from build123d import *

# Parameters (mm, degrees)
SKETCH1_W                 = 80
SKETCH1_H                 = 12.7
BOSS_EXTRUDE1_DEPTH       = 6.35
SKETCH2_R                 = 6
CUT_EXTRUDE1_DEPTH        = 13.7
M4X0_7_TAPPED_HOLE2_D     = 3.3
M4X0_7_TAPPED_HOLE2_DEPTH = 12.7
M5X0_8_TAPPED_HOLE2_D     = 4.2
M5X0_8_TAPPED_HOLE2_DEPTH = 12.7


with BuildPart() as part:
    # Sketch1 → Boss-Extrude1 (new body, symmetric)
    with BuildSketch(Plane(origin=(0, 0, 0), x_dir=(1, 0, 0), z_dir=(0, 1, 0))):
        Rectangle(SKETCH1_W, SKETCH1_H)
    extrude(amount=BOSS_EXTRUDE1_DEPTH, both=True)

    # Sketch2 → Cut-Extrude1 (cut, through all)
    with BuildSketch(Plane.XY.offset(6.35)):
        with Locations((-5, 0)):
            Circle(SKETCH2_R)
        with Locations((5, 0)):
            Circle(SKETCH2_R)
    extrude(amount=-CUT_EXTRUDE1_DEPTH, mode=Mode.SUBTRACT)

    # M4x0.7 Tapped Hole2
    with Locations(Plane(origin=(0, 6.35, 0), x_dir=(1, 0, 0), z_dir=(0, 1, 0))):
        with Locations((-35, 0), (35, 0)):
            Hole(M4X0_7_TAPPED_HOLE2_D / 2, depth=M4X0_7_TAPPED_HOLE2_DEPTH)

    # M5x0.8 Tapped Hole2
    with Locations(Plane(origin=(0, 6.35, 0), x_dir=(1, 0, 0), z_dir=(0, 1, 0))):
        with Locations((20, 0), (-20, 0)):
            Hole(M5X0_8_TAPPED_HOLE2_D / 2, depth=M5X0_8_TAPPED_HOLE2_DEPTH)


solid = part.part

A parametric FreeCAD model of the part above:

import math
import FreeCAD as App
import Part
import Sketcher
from FreeCAD import Vector
Q = App.Units.Quantity


def add_polygon(sketch, points):
    """Adds a closed chain of lines whose ends are joined by coincident constraints."""
    first, n = sketch.GeometryCount, len(points)
    for a, b in zip(points, points[1:] + points[:1]):
        sketch.addGeometry(Part.LineSegment(App.Vector(*a, 0), App.Vector(*b, 0)), False)
    for i in range(n):
        sketch.addConstraint(Sketcher.Constraint("Coincident", first + i, 2, first + (i + 1) % n, 1))

doc = App.newDocument("Part")
params = doc.addObject("Spreadsheet::Sheet", "Params")
for row, (alias, value) in enumerate([
    ("sketch1_width", "80 mm"),
    ("sketch1_height", "12.7 mm"),
    ("pad1_length", "12.7 mm"),
    ("sketch2_radius", "6 mm"),
    ("sketch3_diameter", "3.3 mm"),
    ("hole_diameter", "3.3 mm"),
    ("hole_depth", "12.7 mm"),
    ("sketch4_diameter", "4.2 mm"),
    ("hole2_diameter", "4.2 mm"),
    ("hole2_depth", "12.7 mm"),
], start=1):
    params.set(f"A{row}", alias)
    params.set(f"B{row}", "=" + value)
    params.setAlias(f"B{row}", alias)

body = doc.addObject("PartDesign::Body", "Body")

# Sketch on XZ plane
sketch1 = body.newObject("Sketcher::SketchObject", "Sketch")
sketch1.AttachmentSupport = (doc.getObject("XZ_Plane"), [""])
sketch1.MapMode = "FlatFace"
add_polygon(sketch1, [(-40, -6.35), (-40, 6.35), (40, 6.35), (40, -6.35)])  # lines 0-3
sketch1.addConstraint([
    Sketcher.Constraint("Vertical", 0),
    Sketcher.Constraint("Horizontal", 1),
    Sketcher.Constraint("Vertical", 2),
    Sketcher.Constraint("Horizontal", 3),
    Sketcher.Constraint("Symmetric", 0, 2, 2, 2, -1, 1),
    Sketcher.Constraint("DistanceX", 1, 1, 1, 2, Q("80 mm")),
    Sketcher.Constraint("DistanceY", 0, 1, 0, 2, Q("12.7 mm")),
])
sketch1.setExpression("Constraints[9]", "Params.sketch1_width")
sketch1.setExpression("Constraints[10]", "Params.sketch1_height")
pad1 = body.newObject("PartDesign::Pad", "Pad")
pad1.Profile = sketch1
pad1.setExpression("Length", "Params.pad1_length")
pad1.Midplane = True

# Sketch on XY plane
sketch2 = body.newObject("Sketcher::SketchObject", "Sketch001")
sketch2.AttachmentSupport = (doc.getObject("XY_Plane"), [""])
sketch2.MapMode = "FlatFace"
sketch2.AttachmentOffset = App.Placement(Vector(0, 0, 6.35), App.Rotation())
sketch2.addGeometry([
    Part.ArcOfCircle(Part.Circle(Vector(5, 0, 0), Vector(0, 0, 1), 6), math.radians(-146.44269), math.radians(146.44269)),
    Part.ArcOfCircle(Part.Circle(Vector(-5, 0, 0), Vector(0, 0, 1), 6), math.radians(33.55731), math.radians(326.44269)),
], False)
sketch2.addConstraint([
    Sketcher.Constraint("Coincident", 0, 1, 1, 2),
    Sketcher.Constraint("Coincident", 1, 1, 0, 2),
    Sketcher.Constraint("Equal", 0, 1),
    Sketcher.Constraint("Symmetric", 0, 3, 1, 3, -1, 1),
    Sketcher.Constraint("PointOnObject", 0, 3, -1),
    Sketcher.Constraint("Radius", 0, Q("6 mm")),
    Sketcher.Constraint("DistanceX", -1, 1, 0, 3, Q("5 mm")),
])
sketch2.setExpression("Constraints[5]", "Params.sketch2_radius")
pocket1 = body.newObject("PartDesign::Pocket", "Pocket")
pocket1.Profile = sketch2
pocket1.Type = "ThroughAll"

# Sketch on XZ plane
sketch3 = body.newObject("Sketcher::SketchObject", "Sketch002")
sketch3.AttachmentSupport = (doc.getObject("XZ_Plane"), [""])
sketch3.MapMode = "FlatFace"
sketch3.AttachmentOffset = App.Placement(Vector(0, 0, -6.35), App.Rotation())
sketch3.addGeometry([
    Part.Circle(Vector(-35, 0, 0), Vector(0, 0, 1), 1.65),
    Part.Circle(Vector(35, 0, 0), Vector(0, 0, 1), 1.65),
], False)
sketch3.addConstraint([
    Sketcher.Constraint("Equal", 0, 1),
    Sketcher.Constraint("Symmetric", 0, 3, 1, 3, -1, 1),
    Sketcher.Constraint("PointOnObject", 0, 3, -1),
    Sketcher.Constraint("Diameter", 0, Q("3.3 mm")),
    Sketcher.Constraint("DistanceX", 0, 3, -1, 1, Q("35 mm")),
])
sketch3.setExpression("Constraints[3]", "Params.sketch3_diameter")
doc.recompute()
hole = body.newObject("PartDesign::Hole", "Hole")
hole.Profile = sketch3
hole.ThreadType = "None"
hole.setExpression("Diameter", "Params.hole_diameter")
hole.DepthType = "Dimension"
hole.setExpression("Depth", "Params.hole_depth")
hole.DrillPoint = "Flat"
hole.Reversed = True

# Sketch on XZ plane
sketch4 = body.newObject("Sketcher::SketchObject", "Sketch003")
sketch4.AttachmentSupport = (doc.getObject("XZ_Plane"), [""])
sketch4.MapMode = "FlatFace"
sketch4.AttachmentOffset = App.Placement(Vector(0, 0, -6.35), App.Rotation())
sketch4.addGeometry([
    Part.Circle(Vector(20, 0, 0), Vector(0, 0, 1), 2.1),
    Part.Circle(Vector(-20, 0, 0), Vector(0, 0, 1), 2.1),
], False)
sketch4.addConstraint([
    Sketcher.Constraint("Equal", 0, 1),
    Sketcher.Constraint("Symmetric", 0, 3, 1, 3, -1, 1),
    Sketcher.Constraint("PointOnObject", 0, 3, -1),
    Sketcher.Constraint("Diameter", 0, Q("4.2 mm")),
    Sketcher.Constraint("DistanceX", -1, 1, 0, 3, Q("20 mm")),
])
sketch4.setExpression("Constraints[3]", "Params.sketch4_diameter")
doc.recompute()
hole2 = body.newObject("PartDesign::Hole", "Hole001")
hole2.Profile = sketch4
hole2.ThreadType = "None"
hole2.setExpression("Diameter", "Params.hole2_diameter")
hole2.DepthType = "Dimension"
hole2.setExpression("Depth", "Params.hole2_depth")
hole2.DrillPoint = "Flat"
hole2.Reversed = True

doc.recompute()
